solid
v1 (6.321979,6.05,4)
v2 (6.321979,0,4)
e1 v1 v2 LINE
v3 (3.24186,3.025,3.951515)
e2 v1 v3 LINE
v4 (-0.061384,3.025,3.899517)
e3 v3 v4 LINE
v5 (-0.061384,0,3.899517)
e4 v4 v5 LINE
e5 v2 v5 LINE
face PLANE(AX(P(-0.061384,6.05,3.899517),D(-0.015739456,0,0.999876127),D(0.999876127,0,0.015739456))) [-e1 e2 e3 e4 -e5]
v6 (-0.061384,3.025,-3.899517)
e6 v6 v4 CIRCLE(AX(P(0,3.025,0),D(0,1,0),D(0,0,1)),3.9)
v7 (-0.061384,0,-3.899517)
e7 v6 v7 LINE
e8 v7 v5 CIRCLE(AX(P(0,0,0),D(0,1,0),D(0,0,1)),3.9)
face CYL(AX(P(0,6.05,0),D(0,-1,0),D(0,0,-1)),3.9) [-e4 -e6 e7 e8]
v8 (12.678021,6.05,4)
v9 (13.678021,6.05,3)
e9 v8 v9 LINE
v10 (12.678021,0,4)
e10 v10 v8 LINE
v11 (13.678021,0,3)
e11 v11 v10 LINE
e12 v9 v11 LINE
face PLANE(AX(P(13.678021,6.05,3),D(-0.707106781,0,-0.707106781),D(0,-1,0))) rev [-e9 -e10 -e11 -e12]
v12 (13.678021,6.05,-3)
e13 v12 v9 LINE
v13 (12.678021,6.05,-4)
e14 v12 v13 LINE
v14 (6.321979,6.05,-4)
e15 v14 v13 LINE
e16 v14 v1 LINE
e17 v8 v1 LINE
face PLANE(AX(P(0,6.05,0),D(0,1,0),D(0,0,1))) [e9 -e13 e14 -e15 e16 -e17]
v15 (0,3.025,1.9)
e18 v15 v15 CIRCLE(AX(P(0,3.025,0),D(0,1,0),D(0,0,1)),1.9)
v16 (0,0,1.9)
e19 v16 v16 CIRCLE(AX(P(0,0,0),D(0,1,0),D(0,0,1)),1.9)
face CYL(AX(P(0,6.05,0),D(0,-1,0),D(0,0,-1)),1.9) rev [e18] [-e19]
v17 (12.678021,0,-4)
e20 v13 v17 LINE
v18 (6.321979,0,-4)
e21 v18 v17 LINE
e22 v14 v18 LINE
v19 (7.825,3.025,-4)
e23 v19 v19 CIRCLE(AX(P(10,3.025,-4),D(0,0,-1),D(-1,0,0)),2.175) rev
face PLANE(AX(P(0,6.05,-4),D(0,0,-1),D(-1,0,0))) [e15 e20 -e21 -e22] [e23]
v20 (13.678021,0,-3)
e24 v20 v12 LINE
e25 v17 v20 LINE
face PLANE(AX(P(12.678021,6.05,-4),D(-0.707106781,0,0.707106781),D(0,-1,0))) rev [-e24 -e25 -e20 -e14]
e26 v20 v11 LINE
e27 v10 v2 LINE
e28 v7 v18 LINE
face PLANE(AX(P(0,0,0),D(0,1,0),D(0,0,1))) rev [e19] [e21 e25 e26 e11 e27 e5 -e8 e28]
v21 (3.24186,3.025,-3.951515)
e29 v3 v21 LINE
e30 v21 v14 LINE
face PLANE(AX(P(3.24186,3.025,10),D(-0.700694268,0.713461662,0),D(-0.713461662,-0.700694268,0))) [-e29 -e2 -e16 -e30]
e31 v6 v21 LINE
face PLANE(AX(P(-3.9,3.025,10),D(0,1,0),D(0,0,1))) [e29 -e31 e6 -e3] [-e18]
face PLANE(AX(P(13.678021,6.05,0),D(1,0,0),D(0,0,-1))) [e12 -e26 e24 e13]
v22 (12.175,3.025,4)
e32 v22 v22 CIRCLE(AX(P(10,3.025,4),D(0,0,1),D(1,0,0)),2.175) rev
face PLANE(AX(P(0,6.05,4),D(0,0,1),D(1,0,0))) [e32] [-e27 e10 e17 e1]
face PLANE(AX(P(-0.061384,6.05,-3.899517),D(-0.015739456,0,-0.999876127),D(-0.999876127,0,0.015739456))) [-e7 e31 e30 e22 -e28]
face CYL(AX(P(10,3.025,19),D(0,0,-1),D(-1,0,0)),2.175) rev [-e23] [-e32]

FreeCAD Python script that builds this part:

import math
import FreeCAD as App
import Part
import Sketcher
from FreeCAD import Vector


def edges_at(feature, points):
    """Names of the edges that pass closest to the given points."""
    edges = feature.Shape.Edges
    near = lambda p: min(range(len(edges)), key=lambda i: edges[i].distToShape(Part.Vertex(*p))[0])
    return sorted({f"Edge{near(p) + 1}" for p in points})

doc = App.newDocument("Part")
body = doc.addObject("PartDesign::Body", "Body")

sketch1 = body.newObject("Sketcher::SketchObject", "Sketch")
sketch1.AttachmentSupport = (doc.getObject("XZ_Plane"), [""])
sketch1.MapMode = "FlatFace"
sketch1.addGeometry([
    Part.LineSegment(Vector(6.3, -4, 0), Vector(-0.1, -3.9, 0)),
    Part.ArcOfCircle(Part.Circle(Vector(0, 0, 0), Vector(0, 0, 1), 3.9), math.radians(91), math.radians(269)),
    Part.LineSegment(Vector(-0.1, 3.9, 0), Vector(6.3, 4, 0)),
    Part.LineSegment(Vector(6.3, 4, 0), Vector(13.7, 4, 0)),
    Part.LineSegment(Vector(13.7, 4, 0), Vector(13.7, -4, 0)),
    Part.LineSegment(Vector(13.7, -4, 0), Vector(6.3, -4, 0)),
    Part.Circle(Vector(0, 0, 0), Vector(0, 0, 1), 1.9),
], False)
sketch1.addConstraint([
    Sketcher.Constraint("Tangent", 0, 2, 1, 2),
    Sketcher.Constraint("Tangent", 1, 1, 2, 1),
    Sketcher.Constraint("Coincident", 2, 2, 3, 1),
    Sketcher.Constraint("Coincident", 3, 2, 4, 1),
    Sketcher.Constraint("Coincident", 4, 2, 5, 1),
    Sketcher.Constraint("Coincident", 5, 2, 0, 1),
    Sketcher.Constraint("Horizontal", 3),
    Sketcher.Constraint("Vertical", 4),
    Sketcher.Constraint("Horizontal", 5),
    Sketcher.Constraint("Coincident", 1, 3, -1, 1),
    Sketcher.Constraint("Coincident", 6, 3, -1, 1),
    Sketcher.Constraint("Symmetric", 2, 2, 5, 2, -1),
    Sketcher.Constraint("Diameter", 6, 3.8),
    Sketcher.Constraint("Radius", 1, 3.9),
    Sketcher.Constraint("DistanceY", 4, 2, 4, 1, 8.0),
    Sketcher.Constraint("DistanceX", 3, 1, 3, 2, 7.356042),
    Sketcher.Constraint("DistanceX", -1, 1, 2, 2, 6.321979),
])
pad1 = body.newObject("PartDesign::Pad", "Pad")
pad1.Profile = sketch1
pad1.Length = 6.05
pad1.Reversed = True

sketch2 = body.newObject("Sketcher::SketchObject", "Sketch001")
sketch2.AttachmentSupport = (doc.getObject("XY_Plane"), [""])
sketch2.MapMode = "FlatFace"
sketch2.addGeometry(Part.Circle(Vector(10, 3, 0), Vector(0, 0, 1), 2.2), False)
sketch2.addConstraint([
    Sketcher.Constraint("Diameter", 0, 4.35),
    Sketcher.Constraint("DistanceX", -1, 1, 0, 3, 10.0),
    Sketcher.Constraint("DistanceY", -1, 1, 0, 3, 3.025),
])
pocket1 = body.newObject("PartDesign::Pocket", "Pocket")
pocket1.Profile = sketch2
pocket1.Type = "ThroughAll"
pocket1.Midplane = True
doc.recompute()

chamfer = body.newObject("PartDesign::Chamfer", "Chamfer")
chamfer.Base = (pocket1, edges_at(pocket1, [(13.678, 3.025, -4), (13.678, 3.025, 4)]))
chamfer.Size = 1

sketch3 = body.newObject("Sketcher::SketchObject", "Sketch002")
sketch3.AttachmentSupport = (doc.getObject("XY_Plane"), [""])
sketch3.MapMode = "FlatFace"
sketch3.addGeometry([
    Part.LineSegment(Vector(-3.9, 3, 0), Vector(3.2, 3, 0)),
    Part.LineSegment(Vector(3.2, 3, 0), Vector(6.3, 6, 0)),
    Part.LineSegment(Vector(6.3, 6, 0), Vector(-3.9, 6, 0)),
    Part.LineSegment(Vector(-3.9, 6, 0), Vector(-3.9, 3, 0)),
], False)
sketch3.addConstraint([
    Sketcher.Constraint("Coincident", 0, 2, 1, 1),
    Sketcher.Constraint("Coincident", 1, 2, 2, 1),
    Sketcher.Constraint("Coincident", 2, 2, 3, 1),
    Sketcher.Constraint("Coincident", 3, 2, 0, 1),
    Sketcher.Constraint("Horizontal", 0),
    Sketcher.Constraint("Horizontal", 2),
    Sketcher.Constraint("Vertical", 3),
    Sketcher.Constraint("DistanceX", 2, 2, -1, 1, 3.9),
    Sketcher.Constraint("DistanceY", 3, 2, 3, 1, 3.025),
    Sketcher.Constraint("DistanceY", -1, 1, 1, 2, 6.05),
    Sketcher.Constraint("DistanceX", 0, 1, 0, 2, 7.14186),
    Sketcher.Constraint("DistanceX", 2, 2, 2, 1, 10.221979),
])
pocket2 = body.newObject("PartDesign::Pocket", "Pocket001")
pocket2.Profile = sketch3
pocket2.Type = "ThroughAll"
pocket2.Midplane = True

doc.recompute()
